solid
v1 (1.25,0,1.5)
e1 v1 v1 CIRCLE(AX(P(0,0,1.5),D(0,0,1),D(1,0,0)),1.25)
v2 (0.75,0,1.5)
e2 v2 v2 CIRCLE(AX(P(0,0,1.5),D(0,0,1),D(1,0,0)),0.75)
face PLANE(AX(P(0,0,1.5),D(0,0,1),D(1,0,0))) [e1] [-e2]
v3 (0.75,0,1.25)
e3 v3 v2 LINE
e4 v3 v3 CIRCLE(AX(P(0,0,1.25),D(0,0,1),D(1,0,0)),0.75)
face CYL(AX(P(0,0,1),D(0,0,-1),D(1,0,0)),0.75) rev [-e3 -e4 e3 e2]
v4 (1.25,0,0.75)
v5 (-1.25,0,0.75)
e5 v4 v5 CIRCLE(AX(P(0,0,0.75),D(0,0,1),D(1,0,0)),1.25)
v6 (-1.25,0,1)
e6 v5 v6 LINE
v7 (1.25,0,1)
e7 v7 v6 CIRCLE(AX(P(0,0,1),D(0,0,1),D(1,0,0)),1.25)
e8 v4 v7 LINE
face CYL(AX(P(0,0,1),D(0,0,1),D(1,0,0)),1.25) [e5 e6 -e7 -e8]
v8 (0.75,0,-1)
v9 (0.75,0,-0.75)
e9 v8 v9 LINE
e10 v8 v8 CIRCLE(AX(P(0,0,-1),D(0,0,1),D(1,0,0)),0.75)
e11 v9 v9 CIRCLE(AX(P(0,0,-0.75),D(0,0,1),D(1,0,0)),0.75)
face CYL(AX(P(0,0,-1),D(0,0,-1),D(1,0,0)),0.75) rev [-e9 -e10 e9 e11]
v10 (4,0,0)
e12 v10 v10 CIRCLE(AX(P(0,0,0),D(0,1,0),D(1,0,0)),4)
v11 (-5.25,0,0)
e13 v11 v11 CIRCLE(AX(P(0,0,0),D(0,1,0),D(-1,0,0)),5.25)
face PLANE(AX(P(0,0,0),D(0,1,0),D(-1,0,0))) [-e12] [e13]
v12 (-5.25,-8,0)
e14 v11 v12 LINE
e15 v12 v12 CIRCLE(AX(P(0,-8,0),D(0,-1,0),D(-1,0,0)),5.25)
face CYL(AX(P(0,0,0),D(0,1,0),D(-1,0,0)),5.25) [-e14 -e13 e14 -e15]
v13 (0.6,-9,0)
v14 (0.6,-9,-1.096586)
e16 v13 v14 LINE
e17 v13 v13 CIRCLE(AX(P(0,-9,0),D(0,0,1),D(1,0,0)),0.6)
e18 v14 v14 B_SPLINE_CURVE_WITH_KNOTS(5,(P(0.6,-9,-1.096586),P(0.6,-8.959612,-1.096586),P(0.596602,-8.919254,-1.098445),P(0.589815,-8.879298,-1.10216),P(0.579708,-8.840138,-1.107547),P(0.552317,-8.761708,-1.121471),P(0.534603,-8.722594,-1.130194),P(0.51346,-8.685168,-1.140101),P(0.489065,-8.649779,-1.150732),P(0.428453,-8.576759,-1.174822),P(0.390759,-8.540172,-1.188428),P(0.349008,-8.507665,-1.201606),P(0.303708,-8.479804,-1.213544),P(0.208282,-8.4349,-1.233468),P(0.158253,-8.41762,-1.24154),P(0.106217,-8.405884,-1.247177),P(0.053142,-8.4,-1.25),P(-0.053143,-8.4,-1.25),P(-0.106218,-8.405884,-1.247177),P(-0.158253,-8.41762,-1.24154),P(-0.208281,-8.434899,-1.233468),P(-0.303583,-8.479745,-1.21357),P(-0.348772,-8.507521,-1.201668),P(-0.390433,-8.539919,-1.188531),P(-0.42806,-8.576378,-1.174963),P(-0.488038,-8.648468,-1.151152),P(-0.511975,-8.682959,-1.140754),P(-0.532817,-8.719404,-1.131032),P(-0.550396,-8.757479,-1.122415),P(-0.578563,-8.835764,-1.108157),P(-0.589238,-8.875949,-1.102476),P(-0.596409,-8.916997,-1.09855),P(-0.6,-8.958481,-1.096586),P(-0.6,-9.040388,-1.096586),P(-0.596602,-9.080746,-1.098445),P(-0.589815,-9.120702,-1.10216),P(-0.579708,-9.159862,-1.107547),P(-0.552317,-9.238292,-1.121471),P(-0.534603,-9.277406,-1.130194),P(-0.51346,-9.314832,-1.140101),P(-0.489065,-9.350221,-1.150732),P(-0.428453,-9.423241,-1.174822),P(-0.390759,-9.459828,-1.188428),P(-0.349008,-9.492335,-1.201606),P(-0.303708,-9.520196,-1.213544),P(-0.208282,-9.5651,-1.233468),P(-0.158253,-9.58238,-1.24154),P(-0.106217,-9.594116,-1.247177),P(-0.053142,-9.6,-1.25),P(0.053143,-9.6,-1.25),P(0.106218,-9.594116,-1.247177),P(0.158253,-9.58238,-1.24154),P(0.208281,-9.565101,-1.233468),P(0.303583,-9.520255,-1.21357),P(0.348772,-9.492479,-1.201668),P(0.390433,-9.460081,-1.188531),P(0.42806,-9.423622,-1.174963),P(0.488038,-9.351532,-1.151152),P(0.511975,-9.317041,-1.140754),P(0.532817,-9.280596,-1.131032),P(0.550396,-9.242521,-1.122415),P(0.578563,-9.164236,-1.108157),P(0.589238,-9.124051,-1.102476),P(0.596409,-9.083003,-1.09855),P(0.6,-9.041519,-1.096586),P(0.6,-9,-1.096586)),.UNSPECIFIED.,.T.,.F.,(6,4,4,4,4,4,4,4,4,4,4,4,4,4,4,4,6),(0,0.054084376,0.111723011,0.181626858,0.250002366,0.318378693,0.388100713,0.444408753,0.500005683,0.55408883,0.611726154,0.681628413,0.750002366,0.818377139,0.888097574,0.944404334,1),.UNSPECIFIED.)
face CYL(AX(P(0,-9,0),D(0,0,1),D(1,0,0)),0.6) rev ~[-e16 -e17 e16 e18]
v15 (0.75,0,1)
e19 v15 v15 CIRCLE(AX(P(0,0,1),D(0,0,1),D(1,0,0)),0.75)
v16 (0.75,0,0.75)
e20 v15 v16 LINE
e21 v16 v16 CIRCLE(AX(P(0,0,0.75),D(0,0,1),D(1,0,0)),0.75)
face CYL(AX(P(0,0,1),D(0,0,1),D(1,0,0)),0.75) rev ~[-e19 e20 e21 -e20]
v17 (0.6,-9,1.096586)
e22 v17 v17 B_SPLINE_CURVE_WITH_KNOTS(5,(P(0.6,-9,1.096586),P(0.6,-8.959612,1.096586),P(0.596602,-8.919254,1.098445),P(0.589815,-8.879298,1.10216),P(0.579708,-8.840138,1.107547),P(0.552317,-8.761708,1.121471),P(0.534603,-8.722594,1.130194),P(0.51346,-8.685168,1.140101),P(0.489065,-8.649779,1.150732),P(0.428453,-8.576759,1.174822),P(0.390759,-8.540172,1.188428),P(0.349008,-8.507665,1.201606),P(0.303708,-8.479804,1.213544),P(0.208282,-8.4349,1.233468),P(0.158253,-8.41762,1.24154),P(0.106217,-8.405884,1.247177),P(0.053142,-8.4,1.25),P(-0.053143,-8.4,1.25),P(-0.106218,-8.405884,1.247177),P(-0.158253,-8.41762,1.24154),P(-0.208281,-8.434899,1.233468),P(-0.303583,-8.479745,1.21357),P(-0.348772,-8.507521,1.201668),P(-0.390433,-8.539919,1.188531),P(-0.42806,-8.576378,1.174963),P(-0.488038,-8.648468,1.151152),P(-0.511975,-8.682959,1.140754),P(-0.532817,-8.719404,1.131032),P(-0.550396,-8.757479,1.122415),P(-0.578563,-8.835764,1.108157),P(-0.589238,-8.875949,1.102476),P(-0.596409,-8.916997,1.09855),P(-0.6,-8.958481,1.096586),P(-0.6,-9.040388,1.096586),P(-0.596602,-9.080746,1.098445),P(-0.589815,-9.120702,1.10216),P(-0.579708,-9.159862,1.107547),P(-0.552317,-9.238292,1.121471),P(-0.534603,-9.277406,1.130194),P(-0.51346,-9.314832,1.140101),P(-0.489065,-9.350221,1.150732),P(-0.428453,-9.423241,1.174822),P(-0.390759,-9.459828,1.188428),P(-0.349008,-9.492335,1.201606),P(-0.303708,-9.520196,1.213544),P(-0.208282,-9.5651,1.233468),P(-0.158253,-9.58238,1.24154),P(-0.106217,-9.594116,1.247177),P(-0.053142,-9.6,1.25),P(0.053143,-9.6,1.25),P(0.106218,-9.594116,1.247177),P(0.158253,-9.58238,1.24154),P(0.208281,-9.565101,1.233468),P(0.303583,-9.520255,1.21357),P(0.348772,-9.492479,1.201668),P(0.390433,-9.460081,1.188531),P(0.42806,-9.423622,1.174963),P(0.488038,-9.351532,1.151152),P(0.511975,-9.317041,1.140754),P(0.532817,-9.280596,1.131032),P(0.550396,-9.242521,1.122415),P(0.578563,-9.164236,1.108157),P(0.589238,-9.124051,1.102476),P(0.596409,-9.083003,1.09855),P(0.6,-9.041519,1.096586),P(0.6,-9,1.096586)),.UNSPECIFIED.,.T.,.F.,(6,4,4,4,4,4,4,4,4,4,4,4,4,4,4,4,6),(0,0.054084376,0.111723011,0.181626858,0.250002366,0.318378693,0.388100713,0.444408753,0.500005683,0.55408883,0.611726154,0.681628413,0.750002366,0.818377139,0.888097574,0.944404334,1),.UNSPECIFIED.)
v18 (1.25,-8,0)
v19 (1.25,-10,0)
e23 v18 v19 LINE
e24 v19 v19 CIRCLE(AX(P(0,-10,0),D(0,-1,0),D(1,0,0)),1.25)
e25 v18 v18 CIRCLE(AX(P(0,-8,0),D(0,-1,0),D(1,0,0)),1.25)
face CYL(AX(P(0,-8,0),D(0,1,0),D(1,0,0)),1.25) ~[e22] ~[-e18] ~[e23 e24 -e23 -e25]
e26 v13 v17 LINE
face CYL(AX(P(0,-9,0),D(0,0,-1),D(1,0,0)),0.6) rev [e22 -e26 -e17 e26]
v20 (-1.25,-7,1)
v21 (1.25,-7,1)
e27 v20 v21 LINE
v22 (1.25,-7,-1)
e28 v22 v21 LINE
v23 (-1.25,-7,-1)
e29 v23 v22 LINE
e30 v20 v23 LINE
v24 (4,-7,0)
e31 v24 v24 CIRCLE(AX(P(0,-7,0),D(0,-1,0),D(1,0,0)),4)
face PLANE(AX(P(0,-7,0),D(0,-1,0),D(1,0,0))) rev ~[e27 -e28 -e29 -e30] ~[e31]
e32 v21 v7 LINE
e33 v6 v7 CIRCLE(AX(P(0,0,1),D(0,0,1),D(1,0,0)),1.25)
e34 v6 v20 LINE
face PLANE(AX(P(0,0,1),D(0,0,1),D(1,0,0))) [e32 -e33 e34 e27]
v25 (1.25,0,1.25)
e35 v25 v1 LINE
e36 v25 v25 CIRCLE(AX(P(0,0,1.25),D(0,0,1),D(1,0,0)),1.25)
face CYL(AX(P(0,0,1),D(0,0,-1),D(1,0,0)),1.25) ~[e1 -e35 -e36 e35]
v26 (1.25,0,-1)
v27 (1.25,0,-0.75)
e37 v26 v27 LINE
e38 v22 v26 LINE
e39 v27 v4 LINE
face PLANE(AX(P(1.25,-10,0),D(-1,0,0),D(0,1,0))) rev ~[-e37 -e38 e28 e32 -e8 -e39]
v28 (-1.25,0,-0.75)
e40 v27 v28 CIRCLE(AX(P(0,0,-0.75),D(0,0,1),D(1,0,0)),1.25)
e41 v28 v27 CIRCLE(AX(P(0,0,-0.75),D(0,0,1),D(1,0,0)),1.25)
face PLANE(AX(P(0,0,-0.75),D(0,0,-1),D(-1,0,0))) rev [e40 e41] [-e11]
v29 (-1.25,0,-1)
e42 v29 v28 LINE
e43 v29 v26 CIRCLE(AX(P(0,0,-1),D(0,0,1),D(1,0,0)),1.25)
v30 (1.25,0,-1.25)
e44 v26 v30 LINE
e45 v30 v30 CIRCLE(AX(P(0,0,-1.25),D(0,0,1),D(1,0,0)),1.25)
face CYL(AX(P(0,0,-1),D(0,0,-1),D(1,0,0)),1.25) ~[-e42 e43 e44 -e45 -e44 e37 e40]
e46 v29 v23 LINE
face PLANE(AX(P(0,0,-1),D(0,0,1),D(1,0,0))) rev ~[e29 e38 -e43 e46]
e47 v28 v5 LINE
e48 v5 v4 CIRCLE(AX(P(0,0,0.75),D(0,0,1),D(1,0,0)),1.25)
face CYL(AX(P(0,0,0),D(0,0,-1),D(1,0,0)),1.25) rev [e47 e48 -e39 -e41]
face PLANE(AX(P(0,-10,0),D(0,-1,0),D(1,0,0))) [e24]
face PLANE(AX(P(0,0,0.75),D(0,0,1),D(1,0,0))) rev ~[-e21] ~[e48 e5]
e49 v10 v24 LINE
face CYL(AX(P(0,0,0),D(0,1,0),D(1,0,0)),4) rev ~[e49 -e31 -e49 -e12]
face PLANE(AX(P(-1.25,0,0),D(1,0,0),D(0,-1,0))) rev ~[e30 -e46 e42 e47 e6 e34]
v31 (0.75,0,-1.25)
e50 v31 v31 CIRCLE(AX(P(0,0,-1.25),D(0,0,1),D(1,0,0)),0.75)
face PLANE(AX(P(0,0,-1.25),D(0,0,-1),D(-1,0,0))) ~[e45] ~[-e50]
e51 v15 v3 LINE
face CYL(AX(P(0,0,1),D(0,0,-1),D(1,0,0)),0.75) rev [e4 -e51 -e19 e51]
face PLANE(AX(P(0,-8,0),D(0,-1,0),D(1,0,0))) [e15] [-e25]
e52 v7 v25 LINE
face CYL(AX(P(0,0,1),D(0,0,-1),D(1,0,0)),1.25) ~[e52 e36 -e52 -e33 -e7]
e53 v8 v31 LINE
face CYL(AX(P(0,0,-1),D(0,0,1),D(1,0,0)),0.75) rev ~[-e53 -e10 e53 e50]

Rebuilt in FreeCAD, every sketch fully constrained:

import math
import FreeCAD as App
import Part
import Sketcher
from FreeCAD import Vector
Q = App.Units.Quantity

doc = App.newDocument("Part")
params = doc.addObject("Spreadsheet::Sheet", "Params")
for row, (alias, value) in enumerate([
    ("sketch1_diameter", "10.5 mm"),
    ("pad1_length", "12 mm"),
    ("sketch2_diameter", "8 mm"),
    ("pocket1_length", "10 mm"),
    ("sketch3_height", "10 mm"),
    ("sketch3_radius", "1.25 mm"),
    ("pad2_length", "2 mm"),
    ("sketch4_diameter", "2.5 mm"),
    ("sketch4_diameter2", "1.5 mm"),
    ("pad3_length", "0.5 mm"),
    ("sketch5_diameter", "2.5 mm"),
    ("sketch5_diameter2", "1.5 mm"),
    ("pad4_length", "0.5 mm"),
    ("sketch6_diameter", "10.5 mm"),
    ("pocket2_length", "4 mm"),
    ("sketch7_diameter", "8 mm"),
    ("pad5_length", "1 mm"),
    ("sketch8_diameter", "2.5 mm"),
    ("pad6_length", "2 mm"),
    ("sketch9_diameter", "1.2 mm"),
], start=1):
    params.set(f"A{row}", alias)
    params.set(f"B{row}", "=" + value)
    params.setAlias(f"B{row}", alias)

body = doc.addObject("PartDesign::Body", "Body")
body.AllowCompound = True

sketch1 = body.newObject("Sketcher::SketchObject", "Sketch")
sketch1.AttachmentSupport = (doc.getObject("XZ_Plane"), [""])
sketch1.MapMode = "FlatFace"
sketch1.addGeometry(Part.Circle(Vector(0, 0, 0), Vector(0, 0, 1), 5), False)
sketch1.addConstraint([
    Sketcher.Constraint("Coincident", 0, 3, -1, 1),
    Sketcher.Constraint("Diameter", 0, Q("10.5 mm")),
])
sketch1.setExpression("Constraints[1]", "Params.sketch1_diameter")
pad1 = body.newObject("PartDesign::Pad", "Pad")
pad1.Profile = sketch1
pad1.setExpression("Length", "Params.pad1_length")

sketch2 = body.newObject("Sketcher::SketchObject", "Sketch001")
sketch2.AttachmentSupport = (doc.getObject("XZ_Plane"), [""])
sketch2.MapMode = "FlatFace"
sketch2.addGeometry(Part.Circle(Vector(0, 0, 0), Vector(0, 0, 1), 4), False)
sketch2.addConstraint([
    Sketcher.Constraint("Coincident", 0, 3, -1, 1),
    Sketcher.Constraint("Diameter", 0, Q("8 mm")),
])
sketch2.setExpression("Constraints[1]", "Params.sketch2_diameter")
pocket1 = body.newObject("PartDesign::Pocket", "Pocket")
pocket1.Profile = sketch2
pocket1.setExpression("Length", "Params.pocket1_length")
pocket1.Reversed = True

sketch3 = body.newObject("Sketcher::SketchObject", "Sketch002")
sketch3.AttachmentSupport = (doc.getObject("XY_Plane"), [""])
sketch3.MapMode = "FlatFace"
sketch3.addGeometry([
    Part.LineSegment(Vector(1.2, -10, 0), Vector(1.2, 0, 0)),
    Part.ArcOfCircle(Part.Circle(Vector(0, 0, 0), Vector(0, 0, 1), 1.2), math.radians(180), math.radians(360)),
    Part.LineSegment(Vector(-1.2, 0, 0), Vector(-1.2, -10, 0)),
    Part.LineSegment(Vector(-1.2, -10, 0), Vector(1.2, -10, 0)),
], False)
sketch3.addConstraint([
    Sketcher.Constraint("Tangent", 0, 2, 1, 2),
    Sketcher.Constraint("Tangent", 1, 1, 2, 1),
    Sketcher.Constraint("Coincident", 2, 2, 3, 1),
    Sketcher.Constraint("Coincident", 3, 2, 0, 1),
    Sketcher.Constraint("Vertical", 0),
    Sketcher.Constraint("Vertical", 2),
    Sketcher.Constraint("Horizontal", 3),
    Sketcher.Constraint("Coincident", 1, 3, -1, 1),
    Sketcher.Constraint("DistanceY", 0, 1, 0, 2, Q("10 mm")),
    Sketcher.Constraint("Radius", 1, Q("1.25 mm")),
])
sketch3.setExpression("Constraints[8]", "Params.sketch3_height")
sketch3.setExpression("Constraints[9]", "Params.sketch3_radius")
pad2 = body.newObject("PartDesign::Pad", "Pad001")
pad2.Profile = sketch3
pad2.setExpression("Length", "Params.pad2_length")
pad2.Midplane = True

sketch4 = body.newObject("Sketcher::SketchObject", "Sketch003")
sketch4.AttachmentSupport = (doc.getObject("XY_Plane"), [""])
sketch4.MapMode = "FlatFace"
sketch4.AttachmentOffset = App.Placement(Vector(0, 0, 1), App.Rotation())
sketch4.addGeometry([
    Part.Circle(Vector(0, 0, 0), Vector(0, 0, 1), 1.2),
    Part.Circle(Vector(0, 0, 0), Vector(0, 0, 1), 0.8),
], False)
sketch4.addConstraint([
    Sketcher.Constraint("Coincident", 0, 3, -1, 1),
    Sketcher.Constraint("Coincident", 1, 3, -1, 1),
    Sketcher.Constraint("Diameter", 0, Q("2.5 mm")),
    Sketcher.Constraint("Diameter", 1, Q("1.5 mm")),
])
sketch4.setExpression("Constraints[2]", "Params.sketch4_diameter")
sketch4.setExpression("Constraints[3]", "Params.sketch4_diameter2")
pad3 = body.newObject("PartDesign::Pad", "Pad002")
pad3.Profile = sketch4
pad3.setExpression("Length", "Params.pad3_length")
pad3.Midplane = True

sketch5 = body.newObject("Sketcher::SketchObject", "Sketch004")
sketch5.AttachmentSupport = (doc.getObject("XY_Plane"), [""])
sketch5.MapMode = "FlatFace"
sketch5.AttachmentOffset = App.Placement(Vector(0, 0, 1), App.Rotation())
sketch5.addGeometry([
    Part.Circle(Vector(0, 0, 0), Vector(0, 0, 1), 1.2),
    Part.Circle(Vector(0, 0, 0), Vector(0, 0, 1), 0.8),
], False)
sketch5.addConstraint([
    Sketcher.Constraint("Coincident", 0, 3, -1, 1),
    Sketcher.Constraint("Coincident", 1, 3, -1, 1),
    Sketcher.Constraint("Diameter", 0, Q("2.5 mm")),
    Sketcher.Constraint("Diameter", 1, Q("1.5 mm")),
])
sketch5.setExpression("Constraints[2]", "Params.sketch5_diameter")
sketch5.setExpression("Constraints[3]", "Params.sketch5_diameter2")
pad4 = body.newObject("PartDesign::Pad", "Pad003")
pad4.Profile = sketch5
pad4.setExpression("Length", "Params.pad4_length")
doc.recompute()

mirrored = body.newObject("PartDesign::Mirrored", "Mirrored")
mirrored.Originals = [pad3]
mirrored.MirrorPlane = (doc.getObject("XY_Plane"), [""])
body.Tip = mirrored

sketch6 = body.newObject("Sketcher::SketchObject", "Sketch005")
sketch6.AttachmentSupport = (doc.getObject("XZ_Plane"), [""])
sketch6.MapMode = "FlatFace"
sketch6.AttachmentOffset = App.Placement(Vector(0, 0, 12), App.Rotation())
sketch6.addGeometry(Part.Circle(Vector(0, 0, 0), Vector(0, 0, 1), 5), False)
sketch6.addConstraint([
    Sketcher.Constraint("Coincident", 0, 3, -1, 1),
    Sketcher.Constraint("Diameter", 0, Q("10.5 mm")),
])
sketch6.setExpression("Constraints[1]", "Params.sketch6_diameter")
pocket2 = body.newObject("PartDesign::Pocket", "Pocket001")
pocket2.Profile = sketch6
pocket2.setExpression("Length", "Params.pocket2_length")

sketch7 = body.newObject("Sketcher::SketchObject", "Sketch006")
sketch7.AttachmentSupport = (doc.getObject("XZ_Plane"), [""])
sketch7.MapMode = "FlatFace"
sketch7.AttachmentOffset = App.Placement(Vector(0, 0, 8), App.Rotation())
sketch7.addGeometry(Part.Circle(Vector(0, 0, 0), Vector(0, 0, 1), 4), False)
sketch7.addConstraint([
    Sketcher.Constraint("Coincident", 0, 3, -1, 1),
    Sketcher.Constraint("Diameter", 0, Q("8 mm")),
])
sketch7.setExpression("Constraints[1]", "Params.sketch7_diameter")
pad5 = body.newObject("PartDesign::Pad", "Pad004")
pad5.Profile = sketch7
pad5.setExpression("Length", "Params.pad5_length")
pad5.Reversed = True

sketch8 = body.newObject("Sketcher::SketchObject", "Sketch007")
sketch8.AttachmentSupport = (doc.getObject("XZ_Plane"), [""])
sketch8.MapMode = "FlatFace"
sketch8.AttachmentOffset = App.Placement(Vector(0, 0, 8), App.Rotation())
sketch8.addGeometry(Part.Circle(Vector(0, 0, 0), Vector(0, 0, 1), 1.2), False)
sketch8.addConstraint([
    Sketcher.Constraint("Coincident", 0, 3, -1, 1),
    Sketcher.Constraint("Diameter", 0, Q("2.5 mm")),
])
sketch8.setExpression("Constraints[1]", "Params.sketch8_diameter")
pad6 = body.newObject("PartDesign::Pad", "Pad005")
pad6.Profile = sketch8
pad6.setExpression("Length", "Params.pad6_length")

sketch9 = body.newObject("Sketcher::SketchObject", "Sketch008")
sketch9.AttachmentSupport = (doc.getObject("XY_Plane"), [""])
sketch9.MapMode = "FlatFace"
sketch9.addGeometry(Part.Circle(Vector(0, -9, 0), Vector(0, 0, 1), 0.6), False)
sketch9.addConstraint([
    Sketcher.Constraint("PointOnObject", 0, 3, -2),
    Sketcher.Constraint("Diameter", 0, Q("1.2 mm")),
    Sketcher.Constraint("DistanceY", 0, 3, -1, 1, Q("9 mm")),
])
sketch9.setExpression("Constraints[1]", "Params.sketch9_diameter")
pocket3 = body.newObject("PartDesign::Pocket", "Pocket002")
pocket3.Profile = sketch9
pocket3.Type = "ThroughAll"
pocket3.Midplane = True

doc.recompute()
